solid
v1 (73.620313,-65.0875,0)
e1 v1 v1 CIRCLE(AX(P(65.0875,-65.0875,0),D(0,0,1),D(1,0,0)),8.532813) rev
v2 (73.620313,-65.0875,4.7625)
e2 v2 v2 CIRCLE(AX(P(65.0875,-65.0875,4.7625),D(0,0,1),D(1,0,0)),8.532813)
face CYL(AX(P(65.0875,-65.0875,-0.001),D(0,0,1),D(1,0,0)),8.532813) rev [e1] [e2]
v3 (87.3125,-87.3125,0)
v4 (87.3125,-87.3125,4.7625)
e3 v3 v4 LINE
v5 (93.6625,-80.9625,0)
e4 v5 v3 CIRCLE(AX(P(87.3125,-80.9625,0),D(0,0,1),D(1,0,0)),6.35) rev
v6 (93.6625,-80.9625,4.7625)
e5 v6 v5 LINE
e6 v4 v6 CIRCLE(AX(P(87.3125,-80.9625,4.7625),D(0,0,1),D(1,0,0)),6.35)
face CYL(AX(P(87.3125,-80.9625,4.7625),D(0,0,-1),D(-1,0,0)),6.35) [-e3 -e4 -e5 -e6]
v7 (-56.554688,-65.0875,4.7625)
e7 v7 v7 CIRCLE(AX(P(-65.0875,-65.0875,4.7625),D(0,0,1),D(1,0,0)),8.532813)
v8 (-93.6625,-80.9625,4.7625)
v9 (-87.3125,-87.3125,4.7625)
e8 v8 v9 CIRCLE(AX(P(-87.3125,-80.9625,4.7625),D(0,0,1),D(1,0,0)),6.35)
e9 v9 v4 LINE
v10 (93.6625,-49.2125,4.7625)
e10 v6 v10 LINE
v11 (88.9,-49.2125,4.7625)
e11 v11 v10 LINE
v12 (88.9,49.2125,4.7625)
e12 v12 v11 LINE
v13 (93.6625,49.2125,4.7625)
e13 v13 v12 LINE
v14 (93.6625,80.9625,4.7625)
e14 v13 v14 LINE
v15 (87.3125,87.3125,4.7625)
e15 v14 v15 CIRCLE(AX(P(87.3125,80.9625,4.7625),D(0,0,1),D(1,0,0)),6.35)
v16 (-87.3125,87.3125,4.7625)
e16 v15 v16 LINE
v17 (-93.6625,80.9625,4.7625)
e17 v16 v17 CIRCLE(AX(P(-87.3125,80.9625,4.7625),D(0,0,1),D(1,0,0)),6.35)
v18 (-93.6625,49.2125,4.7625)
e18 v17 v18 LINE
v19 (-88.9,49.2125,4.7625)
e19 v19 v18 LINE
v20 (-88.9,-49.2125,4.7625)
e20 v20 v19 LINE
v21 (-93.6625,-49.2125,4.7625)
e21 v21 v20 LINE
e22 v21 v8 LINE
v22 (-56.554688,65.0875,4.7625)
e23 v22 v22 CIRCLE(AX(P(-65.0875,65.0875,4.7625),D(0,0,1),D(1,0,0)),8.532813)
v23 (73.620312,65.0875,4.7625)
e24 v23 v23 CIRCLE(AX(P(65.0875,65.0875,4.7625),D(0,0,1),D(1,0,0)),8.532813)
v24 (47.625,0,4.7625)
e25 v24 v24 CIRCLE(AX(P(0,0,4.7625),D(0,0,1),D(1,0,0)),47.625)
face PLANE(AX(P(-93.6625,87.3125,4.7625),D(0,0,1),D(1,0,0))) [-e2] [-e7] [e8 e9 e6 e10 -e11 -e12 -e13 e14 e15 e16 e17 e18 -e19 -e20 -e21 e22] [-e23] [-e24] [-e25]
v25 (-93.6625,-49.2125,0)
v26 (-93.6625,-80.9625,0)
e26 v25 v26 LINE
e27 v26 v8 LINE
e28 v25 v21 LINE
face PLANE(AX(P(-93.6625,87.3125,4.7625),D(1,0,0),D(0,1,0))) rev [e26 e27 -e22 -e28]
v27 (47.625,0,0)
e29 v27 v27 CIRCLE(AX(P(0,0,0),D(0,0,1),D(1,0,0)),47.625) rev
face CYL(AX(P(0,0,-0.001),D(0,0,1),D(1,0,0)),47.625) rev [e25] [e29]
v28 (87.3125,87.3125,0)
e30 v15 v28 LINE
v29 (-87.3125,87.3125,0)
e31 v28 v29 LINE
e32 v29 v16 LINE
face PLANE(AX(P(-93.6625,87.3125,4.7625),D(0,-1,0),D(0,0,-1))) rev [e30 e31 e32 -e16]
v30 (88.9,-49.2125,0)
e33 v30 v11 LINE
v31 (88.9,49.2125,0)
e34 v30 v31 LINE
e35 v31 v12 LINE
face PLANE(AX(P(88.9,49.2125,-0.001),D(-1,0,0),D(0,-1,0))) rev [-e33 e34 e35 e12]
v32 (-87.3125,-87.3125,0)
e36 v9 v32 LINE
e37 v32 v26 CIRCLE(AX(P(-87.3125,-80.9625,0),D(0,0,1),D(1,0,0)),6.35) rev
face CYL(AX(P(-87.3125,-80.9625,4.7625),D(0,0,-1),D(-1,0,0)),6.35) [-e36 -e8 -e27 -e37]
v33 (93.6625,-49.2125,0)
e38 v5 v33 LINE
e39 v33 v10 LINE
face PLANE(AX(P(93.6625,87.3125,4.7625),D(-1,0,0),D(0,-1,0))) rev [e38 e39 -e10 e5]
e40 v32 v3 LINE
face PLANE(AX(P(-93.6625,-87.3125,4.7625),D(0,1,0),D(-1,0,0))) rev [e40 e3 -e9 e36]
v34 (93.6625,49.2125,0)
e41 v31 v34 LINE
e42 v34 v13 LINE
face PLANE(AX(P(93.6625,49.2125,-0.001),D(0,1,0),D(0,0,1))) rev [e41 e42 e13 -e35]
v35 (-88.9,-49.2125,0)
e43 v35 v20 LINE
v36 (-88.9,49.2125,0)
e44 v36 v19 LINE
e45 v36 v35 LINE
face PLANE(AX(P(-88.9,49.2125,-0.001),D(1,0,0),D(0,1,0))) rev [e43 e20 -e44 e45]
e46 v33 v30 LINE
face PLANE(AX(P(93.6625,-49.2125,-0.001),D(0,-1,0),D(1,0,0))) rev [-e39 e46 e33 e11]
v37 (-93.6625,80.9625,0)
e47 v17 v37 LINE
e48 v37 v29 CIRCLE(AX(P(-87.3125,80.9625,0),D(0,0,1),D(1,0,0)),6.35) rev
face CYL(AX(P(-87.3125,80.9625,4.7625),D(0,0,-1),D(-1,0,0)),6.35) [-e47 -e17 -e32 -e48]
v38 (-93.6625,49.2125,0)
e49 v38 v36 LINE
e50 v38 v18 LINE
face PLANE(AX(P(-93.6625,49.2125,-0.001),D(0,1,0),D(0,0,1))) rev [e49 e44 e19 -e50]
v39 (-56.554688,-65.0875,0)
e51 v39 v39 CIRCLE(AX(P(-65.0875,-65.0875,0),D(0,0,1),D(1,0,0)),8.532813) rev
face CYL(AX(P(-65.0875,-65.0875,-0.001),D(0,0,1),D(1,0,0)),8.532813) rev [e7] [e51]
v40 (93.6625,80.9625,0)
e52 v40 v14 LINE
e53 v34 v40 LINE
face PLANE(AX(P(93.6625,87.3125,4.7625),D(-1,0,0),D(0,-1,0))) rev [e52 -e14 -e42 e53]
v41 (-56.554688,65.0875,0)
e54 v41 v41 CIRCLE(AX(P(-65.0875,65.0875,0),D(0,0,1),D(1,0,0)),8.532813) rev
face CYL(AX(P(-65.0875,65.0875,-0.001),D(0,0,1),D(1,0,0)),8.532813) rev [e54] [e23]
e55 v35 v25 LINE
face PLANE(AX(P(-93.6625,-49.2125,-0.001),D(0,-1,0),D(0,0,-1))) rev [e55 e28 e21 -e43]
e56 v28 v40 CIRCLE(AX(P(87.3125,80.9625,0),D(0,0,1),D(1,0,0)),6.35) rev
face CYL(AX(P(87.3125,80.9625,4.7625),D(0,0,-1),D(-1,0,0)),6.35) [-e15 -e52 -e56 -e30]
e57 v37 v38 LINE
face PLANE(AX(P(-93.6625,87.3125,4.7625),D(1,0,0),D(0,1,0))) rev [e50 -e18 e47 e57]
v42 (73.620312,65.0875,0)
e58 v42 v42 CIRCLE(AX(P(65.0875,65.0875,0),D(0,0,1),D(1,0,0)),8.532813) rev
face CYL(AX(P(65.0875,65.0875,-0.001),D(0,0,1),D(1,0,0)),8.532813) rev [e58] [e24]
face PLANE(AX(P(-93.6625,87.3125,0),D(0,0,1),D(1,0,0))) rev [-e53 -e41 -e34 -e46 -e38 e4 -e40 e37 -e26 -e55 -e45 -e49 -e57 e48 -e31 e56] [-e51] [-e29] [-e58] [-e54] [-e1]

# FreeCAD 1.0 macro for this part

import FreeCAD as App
import Part
import Sketcher
Q = App.Units.Quantity


def edges_at(feature, points):
    """Names of the edges that pass closest to the given points."""
    edges = feature.Shape.Edges
    near = lambda p: min(range(len(edges)), key=lambda i: edges[i].distToShape(Part.Vertex(*p))[0])
    return sorted({f"Edge{near(p) + 1}" for p in points})

doc = App.newDocument("Part")
body = doc.addObject("PartDesign::Body", "Body")

# Sketch on XY plane
sketch1 = body.newObject("Sketcher::SketchObject", "Sketch")
sketch1.AttachmentSupport = (doc.getObject("XY_Plane"), [""])
sketch1.MapMode = "FlatFace"
sketch1.addGeometry(Part.LineSegment(App.Vector(-94, 87, 0), App.Vector(-94, -87, 0)), False)
sketch1.addGeometry(Part.LineSegment(App.Vector(-94, -87, 0), App.Vector(94, -87, 0)), False)
sketch1.addGeometry(Part.LineSegment(App.Vector(94, -87, 0), App.Vector(94, 87, 0)), False)
sketch1.addGeometry(Part.LineSegment(App.Vector(94, 87, 0), App.Vector(-94, 87, 0)), False)
sketch1.addConstraint(Sketcher.Constraint("Coincident", 0, 2, 1, 1))
sketch1.addConstraint(Sketcher.Constraint("Coincident", 1, 2, 2, 1))
sketch1.addConstraint(Sketcher.Constraint("Coincident", 2, 2, 3, 1))
sketch1.addConstraint(Sketcher.Constraint("Coincident", 3, 2, 0, 1))
sketch1.addConstraint(Sketcher.Constraint("Vertical", 0))
sketch1.addConstraint(Sketcher.Constraint("Horizontal", 1))
sketch1.addConstraint(Sketcher.Constraint("Vertical", 2))
sketch1.addConstraint(Sketcher.Constraint("Horizontal", 3))
sketch1.addConstraint(Sketcher.Constraint("Symmetric", 0, 2, 2, 2, -1, 1))
sketch1.addConstraint(Sketcher.Constraint("DistanceX", 1, 1, 1, 2, Q("7.375 in")))
sketch1.addConstraint(Sketcher.Constraint("DistanceY", 0, 2, 0, 1, Q("6.875 in")))
pad1 = body.newObject("PartDesign::Pad", "Pad")
pad1.Profile = sketch1
pad1.Length = Q("0.1875 in")

# Sketch on XY plane
sketch2 = body.newObject("Sketcher::SketchObject", "Sketch001")
sketch2.AttachmentSupport = (doc.getObject("XY_Plane"), [""])
sketch2.MapMode = "FlatFace"
sketch2.AttachmentOffset = App.Placement(App.Vector(0, 0, 0.1875 * 25.4), App.Rotation())
sketch2.addGeometry(Part.LineSegment(App.Vector(-93.7, 49.2, 0), App.Vector(-93.7, -49.2, 0)), False)
sketch2.addGeometry(Part.LineSegment(App.Vector(-93.7, -49.2, 0), App.Vector(-88.9, -49.2, 0)), False)
sketch2.addGeometry(Part.LineSegment(App.Vector(-88.9, -49.2, 0), App.Vector(-88.9, 49.2, 0)), False)
sketch2.addGeometry(Part.LineSegment(App.Vector(-88.9, 49.2, 0), App.Vector(-93.7, 49.2, 0)), False)
sketch2.addConstraint(Sketcher.Constraint("Coincident", 0, 2, 1, 1))
sketch2.addConstraint(Sketcher.Constraint("Coincident", 1, 2, 2, 1))
sketch2.addConstraint(Sketcher.Constraint("Coincident", 2, 2, 3, 1))
sketch2.addConstraint(Sketcher.Constraint("Coincident", 3, 2, 0, 1))
sketch2.addConstraint(Sketcher.Constraint("Vertical", 0))
sketch2.addConstraint(Sketcher.Constraint("Horizontal", 1))
sketch2.addConstraint(Sketcher.Constraint("Vertical", 2))
sketch2.addConstraint(Sketcher.Constraint("Horizontal", 3))
sketch2.addConstraint(Sketcher.Constraint("DistanceX", 1, 2, -1, 1, Q("3.5 in")))
sketch2.addConstraint(Sketcher.Constraint("DistanceX", 1, 1, 1, 2, Q("0.1875 in")))
sketch2.addConstraint(Sketcher.Constraint("DistanceY", 0, 2, 0, 1, Q("3.875 in")))
sketch2.addConstraint(Sketcher.Constraint("DistanceY", 0, 2, -1, 1, Q("1.9375 in")))
pocket1 = body.newObject("PartDesign::Pocket", "Pocket")
pocket1.Profile = sketch2
pocket1.Type = "UpToFirst"

# Sketch on XY plane
sketch3 = body.newObject("Sketcher::SketchObject", "Sketch002")
sketch3.AttachmentSupport = (doc.getObject("XY_Plane"), [""])
sketch3.MapMode = "FlatFace"
sketch3.AttachmentOffset = App.Placement(App.Vector(0, 0, 0.1875 * 25.4), App.Rotation())
sketch3.addGeometry(Part.LineSegment(App.Vector(88.9, 49.2, 0), App.Vector(88.9, -49.2, 0)), False)
sketch3.addGeometry(Part.LineSegment(App.Vector(88.9, -49.2, 0), App.Vector(93.7, -49.2, 0)), False)
sketch3.addGeometry(Part.LineSegment(App.Vector(93.7, -49.2, 0), App.Vector(93.7, 49.2, 0)), False)
sketch3.addGeometry(Part.LineSegment(App.Vector(93.7, 49.2, 0), App.Vector(88.9, 49.2, 0)), False)
sketch3.addConstraint(Sketcher.Constraint("Coincident", 0, 2, 1, 1))
sketch3.addConstraint(Sketcher.Constraint("Coincident", 1, 2, 2, 1))
sketch3.addConstraint(Sketcher.Constraint("Coincident", 2, 2, 3, 1))
sketch3.addConstraint(Sketcher.Constraint("Coincident", 3, 2, 0, 1))
sketch3.addConstraint(Sketcher.Constraint("Vertical", 0))
sketch3.addConstraint(Sketcher.Constraint("Horizontal", 1))
sketch3.addConstraint(Sketcher.Constraint("Vertical", 2))
sketch3.addConstraint(Sketcher.Constraint("Horizontal", 3))
sketch3.addConstraint(Sketcher.Constraint("DistanceX", -1, 1, 0, 2, Q("3.5 in")))
sketch3.addConstraint(Sketcher.Constraint("DistanceX", 1, 1, 1, 2, Q("0.1875 in")))
sketch3.addConstraint(Sketcher.Constraint("DistanceY", 0, 2, 0, 1, Q("3.875 in")))
sketch3.addConstraint(Sketcher.Constraint("DistanceY", 0, 2, -1, 1, Q("1.9375 in")))
pocket2 = body.newObject("PartDesign::Pocket", "Pocket001")
pocket2.Profile = sketch3
pocket2.Type = "UpToFirst"
doc.recompute()

fillet = body.newObject("PartDesign::Fillet", "Fillet")
fillet.Base = (pocket2, edges_at(pocket2, [
    (-93.662, 87.312, 2.381),
    (93.662, 87.312, 2.381),
    (93.662, -87.312, 2.381),
    (-93.662, -87.312, 2.381),
]))
fillet.Radius = Q("0.25 in")

# Sketch on XY plane
sketch4 = body.newObject("Sketcher::SketchObject", "Sketch003")
sketch4.AttachmentSupport = (doc.getObject("XY_Plane"), [""])
sketch4.MapMode = "FlatFace"
sketch4.AttachmentOffset = App.Placement(App.Vector(0, 0, 0.1875 * 25.4), App.Rotation())
sketch4.addGeometry(Part.Circle(App.Vector(0, 0, 0), App.Vector(0, 0, 1), 48), False)
sketch4.addConstraint(Sketcher.Constraint("Coincident", 0, 3, -1, 1))
sketch4.addConstraint(Sketcher.Constraint("Diameter", 0, Q("3.75 in")))
pocket3 = body.newObject("PartDesign::Pocket", "Pocket002")
pocket3.Profile = sketch4
pocket3.Type = "UpToFirst"

# Sketch on XY plane
sketch5 = body.newObject("Sketcher::SketchObject", "Sketch004")
sketch5.AttachmentSupport = (doc.getObject("XY_Plane"), [""])
sketch5.MapMode = "FlatFace"
sketch5.AttachmentOffset = App.Placement(App.Vector(0, 0, 0.1875 * 25.4), App.Rotation())
sketch5.addGeometry(Part.Circle(App.Vector(-65, 65, 0), App.Vector(0, 0, 1), 9), False)
sketch5.addConstraint(Sketcher.Constraint("Diameter", 0, Q("0.671875 in")))
sketch5.addConstraint(Sketcher.Constraint("DistanceX", 0, 3, -1, 1, Q("2.5625 in")))
sketch5.addConstraint(Sketcher.Constraint("DistanceY", -1, 1, 0, 3, Q("2.5625 in")))
pocket4 = body.newObject("PartDesign::Pocket", "Pocket003")
pocket4.Profile = sketch5
pocket4.Type = "UpToFirst"

# Sketch on XY plane
sketch6 = body.newObject("Sketcher::SketchObject", "Sketch005")
sketch6.AttachmentSupport = (doc.getObject("XY_Plane"), [""])
sketch6.MapMode = "FlatFace"
sketch6.AttachmentOffset = App.Placement(App.Vector(0, 0, 0.1875 * 25.4), App.Rotation())
sketch6.addGeometry(Part.Circle(App.Vector(-65, -65, 0), App.Vector(0, 0, 1), 9), False)
sketch6.addConstraint(Sketcher.Constraint("Diameter", 0, Q("0.671875 in")))
sketch6.addConstraint(Sketcher.Constraint("DistanceX", 0, 3, -1, 1, Q("2.5625 in")))
sketch6.addConstraint(Sketcher.Constraint("DistanceY", 0, 3, -1, 1, Q("2.5625 in")))
pocket5 = body.newObject("PartDesign::Pocket", "Pocket004")
pocket5.Profile = sketch6
pocket5.Type = "UpToFirst"

# Sketch on XY plane
sketch7 = body.newObject("Sketcher::SketchObject", "Sketch006")
sketch7.AttachmentSupport = (doc.getObject("XY_Plane"), [""])
sketch7.MapMode = "FlatFace"
sketch7.AttachmentOffset = App.Placement(App.Vector(0, 0, 0.1875 * 25.4), App.Rotation())
sketch7.addGeometry(Part.Circle(App.Vector(65, -65, 0), App.Vector(0, 0, 1), 9), False)
sketch7.addConstraint(Sketcher.Constraint("Diameter", 0, Q("0.671875 in")))
sketch7.addConstraint(Sketcher.Constraint("DistanceX", -1, 1, 0, 3, Q("2.5625 in")))
sketch7.addConstraint(Sketcher.Constraint("DistanceY", 0, 3, -1, 1, Q("2.5625 in")))
pocket6 = body.newObject("PartDesign::Pocket", "Pocket005")
pocket6.Profile = sketch7
pocket6.Type = "UpToFirst"

# Sketch on XY plane
sketch8 = body.newObject("Sketcher::SketchObject", "Sketch007")
sketch8.AttachmentSupport = (doc.getObject("XY_Plane"), [""])
sketch8.MapMode = "FlatFace"
sketch8.AttachmentOffset = App.Placement(App.Vector(0, 0, 0.1875 * 25.4), App.Rotation())
sketch8.addGeometry(Part.Circle(App.Vector(65, 65, 0), App.Vector(0, 0, 1), 9), False)
sketch8.addConstraint(Sketcher.Constraint("Diameter", 0, Q("0.671875 in")))
sketch8.addConstraint(Sketcher.Constraint("DistanceX", -1, 1, 0, 3, Q("2.5625 in")))
sketch8.addConstraint(Sketcher.Constraint("DistanceY", -1, 1, 0, 3, Q("2.5625 in")))
pocket7 = body.newObject("PartDesign::Pocket", "Pocket006")
pocket7.Profile = sketch8
pocket7.Type = "UpToFirst"

doc.recompute()
